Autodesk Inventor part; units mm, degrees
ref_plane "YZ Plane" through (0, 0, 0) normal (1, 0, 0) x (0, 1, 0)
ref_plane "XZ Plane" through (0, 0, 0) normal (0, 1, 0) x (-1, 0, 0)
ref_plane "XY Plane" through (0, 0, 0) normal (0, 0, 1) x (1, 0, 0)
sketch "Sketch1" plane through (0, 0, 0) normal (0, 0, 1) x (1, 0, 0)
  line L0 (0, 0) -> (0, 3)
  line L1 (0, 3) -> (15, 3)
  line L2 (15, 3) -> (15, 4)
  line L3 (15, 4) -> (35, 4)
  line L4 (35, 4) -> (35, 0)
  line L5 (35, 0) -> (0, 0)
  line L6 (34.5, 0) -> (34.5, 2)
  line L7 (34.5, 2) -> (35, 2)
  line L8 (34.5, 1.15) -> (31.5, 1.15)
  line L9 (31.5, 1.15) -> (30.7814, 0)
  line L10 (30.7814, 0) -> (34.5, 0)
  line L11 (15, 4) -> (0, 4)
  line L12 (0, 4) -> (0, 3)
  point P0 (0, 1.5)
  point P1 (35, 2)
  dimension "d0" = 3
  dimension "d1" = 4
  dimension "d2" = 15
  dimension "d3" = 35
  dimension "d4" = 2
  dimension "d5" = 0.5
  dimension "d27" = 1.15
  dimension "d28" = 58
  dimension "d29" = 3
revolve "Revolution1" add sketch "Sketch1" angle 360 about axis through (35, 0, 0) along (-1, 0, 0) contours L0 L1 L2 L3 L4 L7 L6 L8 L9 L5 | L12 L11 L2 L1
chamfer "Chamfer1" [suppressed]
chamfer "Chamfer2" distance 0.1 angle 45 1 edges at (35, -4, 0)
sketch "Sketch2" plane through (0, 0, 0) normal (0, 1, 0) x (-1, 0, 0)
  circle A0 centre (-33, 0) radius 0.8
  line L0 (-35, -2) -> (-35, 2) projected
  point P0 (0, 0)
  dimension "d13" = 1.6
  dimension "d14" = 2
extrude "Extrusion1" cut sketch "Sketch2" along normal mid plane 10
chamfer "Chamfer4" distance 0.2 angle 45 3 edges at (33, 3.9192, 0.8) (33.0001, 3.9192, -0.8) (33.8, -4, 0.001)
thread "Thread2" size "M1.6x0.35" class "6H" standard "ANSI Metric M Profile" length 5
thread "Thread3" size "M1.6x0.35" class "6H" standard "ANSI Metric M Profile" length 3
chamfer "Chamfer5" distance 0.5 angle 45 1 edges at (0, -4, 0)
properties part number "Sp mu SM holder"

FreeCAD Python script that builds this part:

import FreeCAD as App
import Part
import Sketcher
from FreeCAD import Vector
Q = App.Units.Quantity


def edges_at(feature, points):
    """Names of the edges that pass closest to the given points."""
    edges = feature.Shape.Edges
    near = lambda p: min(range(len(edges)), key=lambda i: edges[i].distToShape(Part.Vertex(*p))[0])
    return sorted({f"Edge{near(p) + 1}" for p in points})

doc = App.newDocument("Part")
body = doc.addObject("PartDesign::Body", "Body")

# Sketch on XY plane
sketch1 = body.newObject("Sketcher::SketchObject", "Sketch")
sketch1.AttachmentSupport = (doc.getObject("XY_Plane"), [""])
sketch1.MapMode = "FlatFace"
sketch1.addGeometry(Part.LineSegment(Vector(0, 0, 0), Vector(30.7814, 0, 0)), False)
sketch1.addGeometry(Part.LineSegment(Vector(30.7814, 0, 0), Vector(31.5, 1.15, 0)), False)
sketch1.addGeometry(Part.LineSegment(Vector(31.5, 1.15, 0), Vector(34.5, 1.15, 0)), False)
sketch1.addGeometry(Part.LineSegment(Vector(34.5, 1.15, 0), Vector(34.5, 2, 0)), False)
sketch1.addGeometry(Part.LineSegment(Vector(34.5, 2, 0), Vector(35, 2, 0)), False)
sketch1.addGeometry(Part.LineSegment(Vector(35, 2, 0), Vector(35, 4, 0)), False)
sketch1.addGeometry(Part.LineSegment(Vector(35, 4, 0), Vector(0, 4, 0)), False)
sketch1.addGeometry(Part.LineSegment(Vector(0, 4, 0), Vector(0, 0, 0)), False)
sketch1.addConstraint(Sketcher.Constraint("Coincident", 0, 2, 1, 1))
sketch1.addConstraint(Sketcher.Constraint("Coincident", 1, 2, 2, 1))
sketch1.addConstraint(Sketcher.Constraint("Coincident", 2, 2, 3, 1))
sketch1.addConstraint(Sketcher.Constraint("Coincident", 3, 2, 4, 1))
sketch1.addConstraint(Sketcher.Constraint("Coincident", 4, 2, 5, 1))
sketch1.addConstraint(Sketcher.Constraint("Coincident", 5, 2, 6, 1))
sketch1.addConstraint(Sketcher.Constraint("Coincident", 6, 2, 7, 1))
sketch1.addConstraint(Sketcher.Constraint("Coincident", 7, 2, 0, 1))
sketch1.addConstraint(Sketcher.Constraint("Horizontal", 0))
sketch1.addConstraint(Sketcher.Constraint("Horizontal", 2))
sketch1.addConstraint(Sketcher.Constraint("Vertical", 3))
sketch1.addConstraint(Sketcher.Constraint("Horizontal", 4))
sketch1.addConstraint(Sketcher.Constraint("Vertical", 5))
sketch1.addConstraint(Sketcher.Constraint("Horizontal", 6))
sketch1.addConstraint(Sketcher.Constraint("Vertical", 7))
sketch1.addConstraint(Sketcher.Constraint("Coincident", 7, 2, -1, 1))
sketch1.addConstraint(Sketcher.Constraint("DistanceX", 2, 1, 2, 2, Q("3 mm")))
sketch1.addConstraint(Sketcher.Constraint("DistanceX", 6, 2, 6, 1, Q("35 mm")))
sketch1.addConstraint(Sketcher.Constraint("DistanceY", 5, 1, 5, 2, Q("2 mm")))
sketch1.addConstraint(Sketcher.Constraint("DistanceY", 7, 2, 7, 1, Q("4 mm")))
sketch1.addConstraint(Sketcher.Constraint("Angle", 1, Q("58 deg")))
sketch1.addConstraint(Sketcher.Constraint("DistanceX", 4, 1, 4, 2, Q("0.5 mm")))
sketch1.addConstraint(Sketcher.Constraint("DistanceY", -1, 1, 1, 2, Q("1.15 mm")))
revolution = body.newObject("PartDesign::Revolution", "Revolution")
revolution.Profile = sketch1
revolution.ReferenceAxis = (sketch1, ["H_Axis"])
revolution.Angle = 360
doc.recompute()

chamfer = body.newObject("PartDesign::Chamfer", "Chamfer")
chamfer.Base = (revolution, edges_at(revolution, [(35, -4, 0)]))
chamfer.Size = 0.1

# Sketch on XZ plane
sketch2 = body.newObject("Sketcher::SketchObject", "Sketch001")
sketch2.AttachmentSupport = (doc.getObject("XZ_Plane"), [""])
sketch2.MapMode = "FlatFace"
sketch2.addGeometry(Part.Circle(Vector(33, 0, 0), Vector(0, 0, 1), 0.8), False)
sketch2.addConstraint(Sketcher.Constraint("PointOnObject", 0, 3, -1))
sketch2.addConstraint(Sketcher.Constraint("Diameter", 0, Q("1.6 mm")))
sketch2.addConstraint(Sketcher.Constraint("DistanceX", -1, 1, 0, 3, Q("33 mm")))
pocket1 = body.newObject("PartDesign::Pocket", "Pocket")
pocket1.Profile = sketch2
pocket1.Length = 10
pocket1.Midplane = True
doc.recompute()

chamfer2 = body.newObject("PartDesign::Chamfer", "Chamfer001")
chamfer2.Base = (pocket1, edges_at(pocket1, [(33, 3.919, 0.8), (33, 3.919, -0.8), (33.8, -4, 0.001)]))
chamfer2.Size = 0.2
doc.recompute()

chamfer3 = body.newObject("PartDesign::Chamfer", "Chamfer002")
chamfer3.Base = (chamfer2, edges_at(chamfer2, [(0, -4, 0)]))
chamfer3.Size = 0.5

doc.recompute()
